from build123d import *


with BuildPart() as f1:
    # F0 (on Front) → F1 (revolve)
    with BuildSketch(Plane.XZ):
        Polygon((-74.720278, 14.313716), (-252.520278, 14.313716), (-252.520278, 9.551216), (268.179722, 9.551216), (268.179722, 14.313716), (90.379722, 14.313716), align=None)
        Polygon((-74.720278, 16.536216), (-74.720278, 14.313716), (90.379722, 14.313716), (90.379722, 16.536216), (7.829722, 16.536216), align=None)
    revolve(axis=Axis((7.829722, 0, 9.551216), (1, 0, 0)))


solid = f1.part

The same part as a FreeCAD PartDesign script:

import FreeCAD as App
import Part
import Sketcher

V = App.Vector
Q = App.Units.Quantity


def add_polygon(sketch, points):
    """Adds a closed chain of lines whose ends are joined by coincident constraints."""
    first, n = sketch.GeometryCount, len(points)
    for a, b in zip(points, points[1:] + points[:1]):
        sketch.addGeometry(Part.LineSegment(App.Vector(*a, 0), App.Vector(*b, 0)), False)
    for i in range(n):
        sketch.addConstraint(Sketcher.Constraint("Coincident", first + i, 2, first + (i + 1) % n, 1))

doc = App.newDocument("Part")
body = doc.addObject("PartDesign::Body", "Body")

sketch1 = doc.addObject("Sketcher::SketchObject", "Sketch")
body.addObject(sketch1)
sketch1.AttachmentSupport = (doc.XZ_Plane, [""])
sketch1.MapMode = "FlatFace"
add_polygon(sketch1, [(-252.5, 14.3), (-252.5, 9.6), (268.2, 9.6), (268.2, 14.3), (90.4, 14.3), (90.4, 16.5), (-74.7, 16.5), (-74.7, 14.3)])
sketch1.addGeometry(Part.LineSegment(V(-252.5, 9.6, 0), V(268.2, 9.6, 0)), True)
sketch1.addConstraint([
    Sketcher.Constraint("Vertical", 0),
    Sketcher.Constraint("Horizontal", 1),
    Sketcher.Constraint("Vertical", 2),
    Sketcher.Constraint("Horizontal", 3),
    Sketcher.Constraint("Vertical", 4),
    Sketcher.Constraint("Horizontal", 5),
    Sketcher.Constraint("Vertical", 6),
    Sketcher.Constraint("Horizontal", 7),
    Sketcher.Constraint("Horizontal", 8),
    Sketcher.Constraint("Coincident", 8, 1, 0, 2),
    Sketcher.Constraint("Horizontal", 3, 2, 6, 2),
    Sketcher.Constraint("Vertical", 2, 2, 8, 2),
    Sketcher.Constraint("Equal", 3, 7),
    Sketcher.Constraint("DistanceX", 3, 2, 3, 1, Q("7 in")),
    Sketcher.Constraint("DistanceX", 1, 1, 1, 2, Q("20.5 in")),
    Sketcher.Constraint("DistanceY", 0, 2, 0, 1, Q("0.1875 in")),
    Sketcher.Constraint("DistanceY", 4, 1, 4, 2, Q("0.0875 in")),
    Sketcher.Constraint("DistanceX", -1, 1, 3, 2, Q("90.379722 mm")),
    Sketcher.Constraint("DistanceY", -1, 1, 0, 2, Q("9.551216 mm")),
])
revolution = doc.addObject("PartDesign::Revolution", "Revolution")
body.addObject(revolution)
revolution.Profile = sketch1
revolution.ReferenceAxis = (sketch1, ["Axis0"])
revolution.Angle = 360

doc.recompute()
